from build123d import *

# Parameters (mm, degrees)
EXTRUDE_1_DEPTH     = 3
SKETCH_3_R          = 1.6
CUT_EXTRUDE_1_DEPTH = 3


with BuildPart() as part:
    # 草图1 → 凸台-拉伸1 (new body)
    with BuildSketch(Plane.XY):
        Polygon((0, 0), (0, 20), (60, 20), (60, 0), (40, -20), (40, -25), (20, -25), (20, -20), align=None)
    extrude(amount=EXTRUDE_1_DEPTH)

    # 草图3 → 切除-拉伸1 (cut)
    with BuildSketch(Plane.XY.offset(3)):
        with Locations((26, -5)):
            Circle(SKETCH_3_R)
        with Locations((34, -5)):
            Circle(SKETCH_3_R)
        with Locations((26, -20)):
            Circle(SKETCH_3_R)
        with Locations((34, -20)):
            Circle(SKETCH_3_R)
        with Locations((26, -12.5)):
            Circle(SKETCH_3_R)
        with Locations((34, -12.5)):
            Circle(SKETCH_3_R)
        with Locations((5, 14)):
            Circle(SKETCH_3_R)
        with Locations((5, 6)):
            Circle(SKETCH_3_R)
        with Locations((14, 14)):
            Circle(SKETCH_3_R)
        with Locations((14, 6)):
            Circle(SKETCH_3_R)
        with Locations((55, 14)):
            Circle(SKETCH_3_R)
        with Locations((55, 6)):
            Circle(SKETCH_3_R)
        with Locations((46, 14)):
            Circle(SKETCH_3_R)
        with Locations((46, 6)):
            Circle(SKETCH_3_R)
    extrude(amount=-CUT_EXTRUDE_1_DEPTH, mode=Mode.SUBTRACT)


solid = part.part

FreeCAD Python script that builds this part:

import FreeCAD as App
import Part
import Sketcher


def add_polygon(sketch, points):
    """Adds a closed chain of lines whose ends are joined by coincident constraints."""
    first, n = sketch.GeometryCount, len(points)
    for a, b in zip(points, points[1:] + points[:1]):
        sketch.addGeometry(Part.LineSegment(App.Vector(*a, 0), App.Vector(*b, 0)), False)
    for i in range(n):
        sketch.addConstraint(Sketcher.Constraint("Coincident", first + i, 2, first + (i + 1) % n, 1))

doc = App.newDocument("Part")
params = doc.addObject("Spreadsheet::Sheet", "Params")
for row, (alias, value) in enumerate([
    ("sketch1_width", "20 mm"),
    ("sketch1_width2", "60 mm"),
    ("sketch1_height", "5 mm"),
    ("pad1_length", "3 mm"),
    ("sketch2_diameter", "3.2 mm"),
    ("pocket1_length", "3 mm"),
], start=1):
    params.set(f"A{row}", alias)
    params.set(f"B{row}", "=" + value)
    params.setAlias(f"B{row}", alias)

body = doc.addObject("PartDesign::Body", "Body")

# Sketch on XY plane
sketch1 = body.newObject("Sketcher::SketchObject", "Sketch")
sketch1.AttachmentSupport = (doc.getObject("XY_Plane"), [""])
sketch1.MapMode = "FlatFace"
add_polygon(sketch1, [(0, 20), (0, 0), (20, -20), (20, -25), (40, -25), (40, -20), (60, 0), (60, 20)])  # lines 0-7
sketch1.addConstraint([
    Sketcher.Constraint("Vertical", 0),
    Sketcher.Constraint("Vertical", 2),
    Sketcher.Constraint("Horizontal", 3),
    Sketcher.Constraint("Vertical", 4),
    Sketcher.Constraint("Vertical", 6),
    Sketcher.Constraint("Horizontal", 7),
    Sketcher.Constraint("Coincident", 0, 2, -1, 1),
    Sketcher.Constraint("PointOnObject", 5, 2, -1),
    Sketcher.Constraint("Perpendicular", 1, 5),
    Sketcher.Constraint("Horizontal", 1, 2, 4, 2),
    Sketcher.Constraint("Equal", 3, 0),
    Sketcher.Constraint("Equal", 1, 5),
    Sketcher.Constraint("DistanceX", 3, 1, 3, 2, 20.0),
    Sketcher.Constraint("DistanceX", 7, 2, 7, 1, 60.0),
    Sketcher.Constraint("DistanceY", 2, 2, 2, 1, 5.0),
])
sketch1.setExpression("Constraints[20]", "Params.sketch1_width")
sketch1.setExpression("Constraints[21]", "Params.sketch1_width2")
sketch1.setExpression("Constraints[22]", "Params.sketch1_height")
pad1 = body.newObject("PartDesign::Pad", "Pad")
pad1.Profile = sketch1
pad1.setExpression("Length", "Params.pad1_length")

# Sketch on XY plane
sketch2 = body.newObject("Sketcher::SketchObject", "Sketch001")
sketch2.AttachmentSupport = (doc.getObject("XY_Plane"), [""])
sketch2.MapMode = "FlatFace"
sketch2.AttachmentOffset = App.Placement(App.Vector(0, 0, 3), App.Rotation())
sketch2.addGeometry([
    Part.Circle(App.Vector(26, -5, 0), App.Vector(0, 0, 1), 1.6),  # 0
    Part.Circle(App.Vector(34, -5, 0), App.Vector(0, 0, 1), 1.6),  # 1
    Part.Circle(App.Vector(26, -20, 0), App.Vector(0, 0, 1), 1.6),  # 2
    Part.Circle(App.Vector(34, -20, 0), App.Vector(0, 0, 1), 1.6),  # 3
    Part.Circle(App.Vector(26, -12.5, 0), App.Vector(0, 0, 1), 1.6),  # 4
    Part.Circle(App.Vector(34, -12.5, 0), App.Vector(0, 0, 1), 1.6),  # 5
    Part.Circle(App.Vector(5, 14, 0), App.Vector(0, 0, 1), 1.6),  # 6
    Part.Circle(App.Vector(5, 6, 0), App.Vector(0, 0, 1), 1.6),  # 7
    Part.Circle(App.Vector(14, 14, 0), App.Vector(0, 0, 1), 1.6),  # 8
    Part.Circle(App.Vector(14, 6, 0), App.Vector(0, 0, 1), 1.6),  # 9
    Part.Circle(App.Vector(55, 14, 0), App.Vector(0, 0, 1), 1.6),  # 10
    Part.Circle(App.Vector(55, 6, 0), App.Vector(0, 0, 1), 1.6),  # 11
    Part.Circle(App.Vector(46, 14, 0), App.Vector(0, 0, 1), 1.6),  # 12
    Part.Circle(App.Vector(46, 6, 0), App.Vector(0, 0, 1), 1.6),  # 13
], False)
sketch2.addConstraint([
    Sketcher.Constraint("Equal", 0, 1),
    Sketcher.Constraint("Equal", 1, 2),
    Sketcher.Constraint("Equal", 2, 3),
    Sketcher.Constraint("Equal", 3, 4),
    Sketcher.Constraint("Equal", 4, 5),
    Sketcher.Constraint("Equal", 5, 6),
    Sketcher.Constraint("Equal", 6, 7),
    Sketcher.Constraint("Equal", 7, 8),
    Sketcher.Constraint("Equal", 8, 9),
    Sketcher.Constraint("Equal", 9, 10),
    Sketcher.Constraint("Equal", 10, 11),
    Sketcher.Constraint("Equal", 11, 12),
    Sketcher.Constraint("Equal", 12, 13),
    Sketcher.Constraint("Horizontal", 0, 3, 1, 3),
    Sketcher.Constraint("Horizontal", 2, 3, 3, 3),
    Sketcher.Constraint("Horizontal", 4, 3, 5, 3),
    Sketcher.Constraint("Horizontal", 6, 3, 8, 3),
    Sketcher.Constraint("Horizontal", 7, 3, 9, 3),
    Sketcher.Constraint("Horizontal", 8, 3, 10, 3),
    Sketcher.Constraint("Horizontal", 9, 3, 11, 3),
    Sketcher.Constraint("Horizontal", 10, 3, 12, 3),
    Sketcher.Constraint("Horizontal", 11, 3, 13, 3),
    Sketcher.Constraint("Vertical", 0, 3, 2, 3),
    Sketcher.Constraint("Vertical", 1, 3, 3, 3),
    Sketcher.Constraint("Vertical", 2, 3, 4, 3),
    Sketcher.Constraint("Vertical", 3, 3, 5, 3),
    Sketcher.Constraint("Vertical", 6, 3, 7, 3),
    Sketcher.Constraint("Vertical", 8, 3, 9, 3),
    Sketcher.Constraint("Vertical", 10, 3, 11, 3),
    Sketcher.Constraint("Vertical", 12, 3, 13, 3),
    Sketcher.Constraint("Diameter", 0, 3.2),
    Sketcher.Constraint("DistanceX", -1, 1, 0, 3, 26.0),
    Sketcher.Constraint("DistanceY", 0, 3, -1, 1, 5.0),
    Sketcher.Constraint("DistanceX", -1, 1, 1, 3, 34.0),
    Sketcher.Constraint("DistanceY", 2, 3, -1, 1, 20.0),
    Sketcher.Constraint("DistanceX", -1, 1, 6, 3, 5.0),
    Sketcher.Constraint("DistanceY", -1, 1, 6, 3, 14.0),
    Sketcher.Constraint("DistanceY", -1, 1, 7, 3, 6.0),
    Sketcher.Constraint("DistanceX", -1, 1, 8, 3, 14.0),
    Sketcher.Constraint("DistanceX", -1, 1, 10, 3, 55.0),
    Sketcher.Constraint("DistanceX", -1, 1, 12, 3, 46.0),
    Sketcher.Constraint("DistanceY", 4, 3, -1, 1, 12.5),
])
sketch2.setExpression("Constraints[30]", "Params.sketch2_diameter")
pocket1 = body.newObject("PartDesign::Pocket", "Pocket")
pocket1.Profile = sketch2
pocket1.setExpression("Length", "Params.pocket1_length")

doc.recompute()
